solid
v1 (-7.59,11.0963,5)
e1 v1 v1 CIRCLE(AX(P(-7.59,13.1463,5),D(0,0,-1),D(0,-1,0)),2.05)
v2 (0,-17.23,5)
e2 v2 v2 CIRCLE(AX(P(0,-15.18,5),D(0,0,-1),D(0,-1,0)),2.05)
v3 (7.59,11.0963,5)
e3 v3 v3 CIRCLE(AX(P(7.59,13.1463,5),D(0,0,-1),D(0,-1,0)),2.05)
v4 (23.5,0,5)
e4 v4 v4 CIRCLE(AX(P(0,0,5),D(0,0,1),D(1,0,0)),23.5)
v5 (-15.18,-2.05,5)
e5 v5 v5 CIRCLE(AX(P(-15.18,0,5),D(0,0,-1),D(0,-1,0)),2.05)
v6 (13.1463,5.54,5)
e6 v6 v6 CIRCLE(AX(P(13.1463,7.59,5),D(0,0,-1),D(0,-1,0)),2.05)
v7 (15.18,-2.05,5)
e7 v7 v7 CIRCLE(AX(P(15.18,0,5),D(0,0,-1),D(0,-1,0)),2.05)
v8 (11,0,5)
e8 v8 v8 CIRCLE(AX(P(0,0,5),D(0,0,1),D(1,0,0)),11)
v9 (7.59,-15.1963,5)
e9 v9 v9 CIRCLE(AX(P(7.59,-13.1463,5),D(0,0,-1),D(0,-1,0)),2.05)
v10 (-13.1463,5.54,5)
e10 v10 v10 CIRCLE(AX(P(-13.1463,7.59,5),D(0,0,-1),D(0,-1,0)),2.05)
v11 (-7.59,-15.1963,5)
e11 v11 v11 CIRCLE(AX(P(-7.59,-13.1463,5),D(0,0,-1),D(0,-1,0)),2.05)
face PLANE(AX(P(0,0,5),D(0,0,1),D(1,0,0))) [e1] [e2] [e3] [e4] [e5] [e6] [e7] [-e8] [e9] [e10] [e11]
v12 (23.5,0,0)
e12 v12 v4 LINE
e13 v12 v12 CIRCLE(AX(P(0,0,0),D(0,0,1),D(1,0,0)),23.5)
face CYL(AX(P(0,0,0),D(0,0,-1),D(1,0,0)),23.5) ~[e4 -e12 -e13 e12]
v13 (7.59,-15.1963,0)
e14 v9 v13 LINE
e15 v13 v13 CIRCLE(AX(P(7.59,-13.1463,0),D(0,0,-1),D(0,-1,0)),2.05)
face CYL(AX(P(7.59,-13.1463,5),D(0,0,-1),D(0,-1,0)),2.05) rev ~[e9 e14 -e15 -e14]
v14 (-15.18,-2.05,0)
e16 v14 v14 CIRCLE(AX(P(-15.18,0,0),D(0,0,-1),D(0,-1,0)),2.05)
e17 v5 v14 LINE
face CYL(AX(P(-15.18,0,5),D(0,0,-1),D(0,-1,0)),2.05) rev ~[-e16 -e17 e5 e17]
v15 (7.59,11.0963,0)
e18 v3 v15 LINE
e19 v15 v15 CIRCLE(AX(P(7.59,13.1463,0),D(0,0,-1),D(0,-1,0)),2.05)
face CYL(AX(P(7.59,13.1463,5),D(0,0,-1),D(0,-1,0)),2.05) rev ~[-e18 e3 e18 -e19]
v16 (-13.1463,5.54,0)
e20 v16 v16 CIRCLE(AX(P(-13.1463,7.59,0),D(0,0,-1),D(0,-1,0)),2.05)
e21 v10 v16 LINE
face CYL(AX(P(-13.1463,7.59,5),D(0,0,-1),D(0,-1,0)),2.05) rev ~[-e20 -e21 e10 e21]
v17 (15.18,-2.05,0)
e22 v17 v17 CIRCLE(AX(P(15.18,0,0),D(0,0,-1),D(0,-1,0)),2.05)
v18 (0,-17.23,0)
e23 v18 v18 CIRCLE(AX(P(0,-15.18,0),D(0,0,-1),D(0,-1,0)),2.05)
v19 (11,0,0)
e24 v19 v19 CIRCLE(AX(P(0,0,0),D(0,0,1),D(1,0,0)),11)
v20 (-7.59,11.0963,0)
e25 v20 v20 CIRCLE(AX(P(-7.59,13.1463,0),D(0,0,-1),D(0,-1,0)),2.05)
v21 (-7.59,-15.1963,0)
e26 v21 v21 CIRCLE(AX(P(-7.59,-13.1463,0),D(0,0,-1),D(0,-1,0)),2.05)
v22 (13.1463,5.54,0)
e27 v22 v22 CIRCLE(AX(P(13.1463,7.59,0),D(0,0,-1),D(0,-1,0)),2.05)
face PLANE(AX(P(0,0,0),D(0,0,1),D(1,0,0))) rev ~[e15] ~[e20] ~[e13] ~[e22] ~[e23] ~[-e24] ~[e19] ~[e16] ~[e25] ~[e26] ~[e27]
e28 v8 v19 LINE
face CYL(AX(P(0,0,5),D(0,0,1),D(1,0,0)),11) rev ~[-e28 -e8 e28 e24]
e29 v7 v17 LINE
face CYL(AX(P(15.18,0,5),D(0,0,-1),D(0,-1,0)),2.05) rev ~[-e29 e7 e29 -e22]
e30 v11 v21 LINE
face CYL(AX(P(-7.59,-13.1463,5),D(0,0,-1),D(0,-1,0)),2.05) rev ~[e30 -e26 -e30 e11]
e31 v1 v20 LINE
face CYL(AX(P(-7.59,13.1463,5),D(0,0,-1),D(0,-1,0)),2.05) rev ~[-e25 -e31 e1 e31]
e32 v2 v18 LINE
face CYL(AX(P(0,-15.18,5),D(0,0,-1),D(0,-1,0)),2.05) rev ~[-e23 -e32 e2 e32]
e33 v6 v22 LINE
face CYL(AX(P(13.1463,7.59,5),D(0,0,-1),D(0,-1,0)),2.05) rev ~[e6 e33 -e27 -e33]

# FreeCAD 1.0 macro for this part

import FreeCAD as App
import Part
import Sketcher

V = App.Vector
Q = App.Units.Quantity

doc = App.newDocument("Part")
body = doc.addObject("PartDesign::Body", "Body")

sketch1 = body.newObject("Sketcher::SketchObject", "Sketch")
sketch1.AttachmentSupport = (doc.getObject("XY_Plane"), [""])
sketch1.MapMode = "FlatFace"
sketch1.addGeometry(Part.Circle(V(0, 0, 0), V(0, 0, 1), 24), False)
sketch1.addConstraint([
    Sketcher.Constraint("Coincident", 0, 3, -1, 1),
    Sketcher.Constraint("Diameter", 0, Q("47 mm")),
])
pad1 = body.newObject("PartDesign::Pad", "Pad")
pad1.Profile = sketch1
pad1.Length = 5

sketch2 = body.newObject("Sketcher::SketchObject", "Sketch001")
sketch2.AttachmentSupport = (doc.getObject("XY_Plane"), [""])
sketch2.MapMode = "FlatFace"
sketch2.AttachmentOffset = App.Placement(V(0, 0, 5), App.Rotation())
sketch2.addGeometry([
    Part.Circle(V(0, -15.2, 0), V(0, 0, 1), 2),
    Part.Circle(V(13.1, 7.6, 0), V(0, 0, 1), 2),
    Part.Circle(V(-13.1, 7.6, 0), V(0, 0, 1), 2),
    Part.Circle(V(7.6, -13.1, 0), V(0, 0, 1), 2),
    Part.Circle(V(15.2, 0, 0), V(0, 0, 1), 2),
    Part.Circle(V(7.6, 13.1, 0), V(0, 0, 1), 2),
    Part.Circle(V(-7.6, 13.1, 0), V(0, 0, 1), 2),
    Part.Circle(V(-15.2, 0, 0), V(0, 0, 1), 2),
    Part.Circle(V(-7.6, -13.1, 0), V(0, 0, 1), 2),
], False)
sketch2.addConstraint([
    Sketcher.Constraint("Equal", 0, 1),
    Sketcher.Constraint("Equal", 1, 2),
    Sketcher.Constraint("Equal", 2, 3),
    Sketcher.Constraint("Equal", 3, 4),
    Sketcher.Constraint("Equal", 4, 5),
    Sketcher.Constraint("Equal", 5, 6),
    Sketcher.Constraint("Equal", 6, 7),
    Sketcher.Constraint("Equal", 7, 8),
    Sketcher.Constraint("Symmetric", 3, 3, 6, 3, -1, 1),
    Sketcher.Constraint("Symmetric", 4, 3, 7, 3, -1, 1),
    Sketcher.Constraint("Symmetric", 5, 3, 8, 3, -1, 1),
    Sketcher.Constraint("Symmetric", 1, 3, 2, 3, -2),
    Sketcher.Constraint("Symmetric", 5, 3, 6, 3, -2),
    Sketcher.Constraint("PointOnObject", 0, 3, -2),
    Sketcher.Constraint("PointOnObject", 4, 3, -1),
    Sketcher.Constraint("Diameter", 0, Q("4.1 mm")),
    Sketcher.Constraint("DistanceY", 0, 3, -1, 1, Q("15.18 mm")),
    Sketcher.Constraint("DistanceY", -1, 1, 1, 3, Q("7.59 mm")),
    Sketcher.Constraint("DistanceX", -1, 1, 3, 3, Q("7.59 mm")),
    Sketcher.Constraint("DistanceX", -1, 1, 4, 3, Q("15.18 mm")),
    Sketcher.Constraint("DistanceX", -1, 1, 1, 3, Q("13.1463 mm")),
    Sketcher.Constraint("DistanceY", 3, 3, -1, 1, Q("13.1463 mm")),
])
doc.recompute()
hole = body.newObject("PartDesign::Hole", "Hole")
hole.Profile = sketch2
hole.ThreadType = "None"
hole.Diameter = 4.1
hole.DepthType = "ThroughAll"

sketch3 = body.newObject("Sketcher::SketchObject", "Sketch002")
sketch3.AttachmentSupport = (doc.getObject("XY_Plane"), [""])
sketch3.MapMode = "FlatFace"
sketch3.AttachmentOffset = App.Placement(V(0, 0, 5), App.Rotation())
sketch3.addGeometry(Part.Circle(V(0, 0, 0), V(0, 0, 1), 11), False)
sketch3.addConstraint([
    Sketcher.Constraint("Coincident", 0, 3, -1, 1),
    Sketcher.Constraint("Diameter", 0, Q("22 mm")),
])
pocket1 = body.newObject("PartDesign::Pocket", "Pocket")
pocket1.Profile = sketch3
pocket1.Length = 5

doc.recompute()
